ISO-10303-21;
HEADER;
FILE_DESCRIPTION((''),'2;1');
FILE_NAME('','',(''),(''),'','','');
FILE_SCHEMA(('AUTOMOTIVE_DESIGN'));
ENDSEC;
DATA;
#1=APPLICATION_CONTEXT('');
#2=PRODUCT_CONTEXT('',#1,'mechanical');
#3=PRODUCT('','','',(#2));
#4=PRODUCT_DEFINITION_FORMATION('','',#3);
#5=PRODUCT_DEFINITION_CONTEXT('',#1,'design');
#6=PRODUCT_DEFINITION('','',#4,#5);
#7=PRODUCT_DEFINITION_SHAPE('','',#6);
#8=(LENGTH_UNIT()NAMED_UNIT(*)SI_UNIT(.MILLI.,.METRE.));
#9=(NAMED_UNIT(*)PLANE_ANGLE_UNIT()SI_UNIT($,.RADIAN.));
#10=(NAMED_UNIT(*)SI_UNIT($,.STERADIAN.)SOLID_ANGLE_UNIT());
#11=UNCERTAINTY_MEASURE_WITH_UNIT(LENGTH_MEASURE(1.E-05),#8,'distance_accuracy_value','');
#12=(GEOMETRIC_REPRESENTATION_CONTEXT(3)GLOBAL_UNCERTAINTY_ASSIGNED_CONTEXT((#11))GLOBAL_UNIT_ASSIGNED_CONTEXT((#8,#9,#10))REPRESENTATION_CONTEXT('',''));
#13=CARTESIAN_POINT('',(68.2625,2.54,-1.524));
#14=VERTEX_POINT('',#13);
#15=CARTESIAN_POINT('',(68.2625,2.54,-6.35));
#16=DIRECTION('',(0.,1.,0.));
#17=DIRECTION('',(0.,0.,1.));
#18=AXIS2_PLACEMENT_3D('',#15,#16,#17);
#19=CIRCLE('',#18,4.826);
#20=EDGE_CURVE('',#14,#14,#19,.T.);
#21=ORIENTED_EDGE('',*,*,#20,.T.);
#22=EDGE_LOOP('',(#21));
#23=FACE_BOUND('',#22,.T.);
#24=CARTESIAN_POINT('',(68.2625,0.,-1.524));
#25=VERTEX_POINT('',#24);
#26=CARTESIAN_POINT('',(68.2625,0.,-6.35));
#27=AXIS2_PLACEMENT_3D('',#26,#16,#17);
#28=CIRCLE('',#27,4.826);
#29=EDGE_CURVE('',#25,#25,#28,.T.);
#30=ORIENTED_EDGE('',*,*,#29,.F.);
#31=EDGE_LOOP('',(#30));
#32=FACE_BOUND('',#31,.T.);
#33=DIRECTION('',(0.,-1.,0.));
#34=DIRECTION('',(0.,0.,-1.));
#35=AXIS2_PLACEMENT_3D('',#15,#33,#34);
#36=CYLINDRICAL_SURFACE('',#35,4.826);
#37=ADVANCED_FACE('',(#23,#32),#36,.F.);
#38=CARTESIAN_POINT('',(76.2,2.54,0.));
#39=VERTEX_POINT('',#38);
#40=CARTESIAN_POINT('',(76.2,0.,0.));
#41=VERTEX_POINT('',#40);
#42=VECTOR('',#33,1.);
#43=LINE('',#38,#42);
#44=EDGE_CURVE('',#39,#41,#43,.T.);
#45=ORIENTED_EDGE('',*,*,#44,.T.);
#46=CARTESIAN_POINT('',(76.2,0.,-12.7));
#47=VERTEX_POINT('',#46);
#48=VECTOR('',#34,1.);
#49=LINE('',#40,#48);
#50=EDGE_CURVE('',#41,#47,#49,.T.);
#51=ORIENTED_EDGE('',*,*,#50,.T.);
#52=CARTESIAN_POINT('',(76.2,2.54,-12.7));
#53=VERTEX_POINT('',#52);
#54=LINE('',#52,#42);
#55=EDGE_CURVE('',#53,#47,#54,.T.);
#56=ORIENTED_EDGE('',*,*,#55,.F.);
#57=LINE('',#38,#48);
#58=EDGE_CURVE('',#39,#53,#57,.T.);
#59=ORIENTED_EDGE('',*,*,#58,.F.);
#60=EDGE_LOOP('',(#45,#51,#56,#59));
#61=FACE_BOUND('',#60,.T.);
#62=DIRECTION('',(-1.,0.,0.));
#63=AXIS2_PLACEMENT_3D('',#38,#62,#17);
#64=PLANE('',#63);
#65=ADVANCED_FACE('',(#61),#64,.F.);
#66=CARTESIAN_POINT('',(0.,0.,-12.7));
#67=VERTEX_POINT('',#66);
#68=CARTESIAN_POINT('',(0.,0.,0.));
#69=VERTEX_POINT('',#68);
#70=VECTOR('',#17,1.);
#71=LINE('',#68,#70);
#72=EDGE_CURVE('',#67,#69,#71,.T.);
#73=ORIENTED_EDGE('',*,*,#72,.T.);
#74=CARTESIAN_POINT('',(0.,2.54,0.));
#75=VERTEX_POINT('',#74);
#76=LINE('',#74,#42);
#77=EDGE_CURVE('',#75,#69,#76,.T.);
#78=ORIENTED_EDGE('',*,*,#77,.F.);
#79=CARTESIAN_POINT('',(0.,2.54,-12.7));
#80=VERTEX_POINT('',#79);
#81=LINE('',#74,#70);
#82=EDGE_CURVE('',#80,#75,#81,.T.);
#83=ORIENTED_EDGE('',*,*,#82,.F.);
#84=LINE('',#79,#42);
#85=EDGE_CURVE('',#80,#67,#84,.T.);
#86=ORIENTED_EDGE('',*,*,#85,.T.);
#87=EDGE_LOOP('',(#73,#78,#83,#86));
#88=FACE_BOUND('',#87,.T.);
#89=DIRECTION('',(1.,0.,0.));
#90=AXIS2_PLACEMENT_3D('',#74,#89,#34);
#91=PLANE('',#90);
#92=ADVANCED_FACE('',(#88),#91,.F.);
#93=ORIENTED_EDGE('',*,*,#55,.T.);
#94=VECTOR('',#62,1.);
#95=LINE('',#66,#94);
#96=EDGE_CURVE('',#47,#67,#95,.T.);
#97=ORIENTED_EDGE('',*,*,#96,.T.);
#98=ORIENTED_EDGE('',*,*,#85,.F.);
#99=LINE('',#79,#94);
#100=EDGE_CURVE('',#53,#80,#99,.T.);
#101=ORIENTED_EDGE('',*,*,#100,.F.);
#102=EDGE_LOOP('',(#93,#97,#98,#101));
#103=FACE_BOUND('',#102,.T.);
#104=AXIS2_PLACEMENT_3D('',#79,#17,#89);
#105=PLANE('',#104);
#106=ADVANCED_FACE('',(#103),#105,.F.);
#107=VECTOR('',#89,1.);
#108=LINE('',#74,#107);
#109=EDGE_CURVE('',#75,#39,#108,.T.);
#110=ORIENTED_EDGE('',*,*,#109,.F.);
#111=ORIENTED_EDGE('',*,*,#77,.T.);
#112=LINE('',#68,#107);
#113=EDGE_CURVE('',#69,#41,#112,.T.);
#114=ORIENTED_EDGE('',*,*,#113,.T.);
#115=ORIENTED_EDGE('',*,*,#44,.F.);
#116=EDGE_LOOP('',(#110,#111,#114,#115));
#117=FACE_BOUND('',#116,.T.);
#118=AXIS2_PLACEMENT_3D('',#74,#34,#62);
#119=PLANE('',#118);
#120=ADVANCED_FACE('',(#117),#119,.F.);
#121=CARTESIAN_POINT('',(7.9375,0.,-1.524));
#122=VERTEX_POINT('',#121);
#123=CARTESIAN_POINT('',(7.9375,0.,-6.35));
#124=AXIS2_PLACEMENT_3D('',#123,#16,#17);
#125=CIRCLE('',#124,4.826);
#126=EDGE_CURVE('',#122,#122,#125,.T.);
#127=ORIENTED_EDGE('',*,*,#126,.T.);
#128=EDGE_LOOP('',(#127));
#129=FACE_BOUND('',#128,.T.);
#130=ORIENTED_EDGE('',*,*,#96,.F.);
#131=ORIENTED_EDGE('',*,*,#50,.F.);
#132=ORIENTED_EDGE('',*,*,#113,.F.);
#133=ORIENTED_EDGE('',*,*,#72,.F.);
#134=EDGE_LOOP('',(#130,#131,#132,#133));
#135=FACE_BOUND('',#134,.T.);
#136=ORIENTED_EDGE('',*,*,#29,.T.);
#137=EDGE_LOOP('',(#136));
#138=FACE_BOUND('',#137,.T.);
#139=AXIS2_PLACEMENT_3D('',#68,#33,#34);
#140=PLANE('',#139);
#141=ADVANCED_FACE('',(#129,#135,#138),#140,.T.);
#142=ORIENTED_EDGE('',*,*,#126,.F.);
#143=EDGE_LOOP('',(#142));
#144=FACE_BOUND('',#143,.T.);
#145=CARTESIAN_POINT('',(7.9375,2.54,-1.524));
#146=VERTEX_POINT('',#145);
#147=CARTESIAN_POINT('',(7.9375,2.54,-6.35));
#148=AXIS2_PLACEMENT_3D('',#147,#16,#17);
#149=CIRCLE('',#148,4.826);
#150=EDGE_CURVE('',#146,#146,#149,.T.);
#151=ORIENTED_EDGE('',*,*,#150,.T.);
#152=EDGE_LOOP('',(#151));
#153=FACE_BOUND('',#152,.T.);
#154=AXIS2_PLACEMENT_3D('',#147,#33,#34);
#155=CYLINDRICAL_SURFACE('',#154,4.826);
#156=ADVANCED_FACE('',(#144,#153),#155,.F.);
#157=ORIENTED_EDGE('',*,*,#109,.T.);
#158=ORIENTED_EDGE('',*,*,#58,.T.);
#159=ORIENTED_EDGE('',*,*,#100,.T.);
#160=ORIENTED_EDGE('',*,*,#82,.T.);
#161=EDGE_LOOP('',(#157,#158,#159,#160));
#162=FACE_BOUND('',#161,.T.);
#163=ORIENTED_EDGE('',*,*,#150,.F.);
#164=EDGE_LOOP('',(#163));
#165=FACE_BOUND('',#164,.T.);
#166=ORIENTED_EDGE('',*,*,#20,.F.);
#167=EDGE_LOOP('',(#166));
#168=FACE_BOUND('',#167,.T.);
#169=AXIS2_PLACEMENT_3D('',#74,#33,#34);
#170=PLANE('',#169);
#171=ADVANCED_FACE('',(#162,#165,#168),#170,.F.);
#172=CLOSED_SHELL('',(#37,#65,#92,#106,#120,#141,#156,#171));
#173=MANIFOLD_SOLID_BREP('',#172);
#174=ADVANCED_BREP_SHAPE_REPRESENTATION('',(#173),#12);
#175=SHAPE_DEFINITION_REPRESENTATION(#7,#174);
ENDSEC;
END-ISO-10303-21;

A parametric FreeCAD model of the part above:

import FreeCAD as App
import Part
import Sketcher

V = App.Vector
Q = App.Units.Quantity

doc = App.newDocument("Part")
params = doc.addObject("Spreadsheet::Sheet", "Params")
for row, (alias, value) in enumerate([
    ("sketch1_diameter", "0.38 in"),
    ("sketch1_width", "3 in"),
    ("sketch1_height", "0.5 in"),
    ("pad1_length", "0.1 in"),
], start=1):
    params.set(f"A{row}", alias)
    params.set(f"B{row}", "=" + value)
    params.setAlias(f"B{row}", alias)

body = doc.addObject("PartDesign::Body", "Body")

sketch1 = doc.addObject("Sketcher::SketchObject", "Sketch")
body.addObject(sketch1)
sketch1.AttachmentSupport = (doc.XZ_Plane, [""])
sketch1.MapMode = "FlatFace"
sketch1.addGeometry([
    Part.LineSegment(V(0, -12.7, 0), V(0, 0, 0)),
    Part.LineSegment(V(0, 0, 0), V(76.2, 0, 0)),
    Part.LineSegment(V(76.2, 0, 0), V(76.2, -12.7, 0)),
    Part.LineSegment(V(76.2, -12.7, 0), V(0, -12.7, 0)),
    Part.Circle(V(7.9, -6.3, 0), V(0, 0, 1), 4.8),
    Part.Circle(V(68.3, -6.3, 0), V(0, 0, 1), 4.8),
], False)
sketch1.addConstraint([
    Sketcher.Constraint("Coincident", 0, 2, 1, 1),
    Sketcher.Constraint("Coincident", 1, 2, 2, 1),
    Sketcher.Constraint("Coincident", 2, 2, 3, 1),
    Sketcher.Constraint("Coincident", 3, 2, 0, 1),
    Sketcher.Constraint("Vertical", 0),
    Sketcher.Constraint("Horizontal", 1),
    Sketcher.Constraint("Vertical", 2),
    Sketcher.Constraint("Horizontal", 3),
    Sketcher.Constraint("Coincident", 0, 2, -1, 1),
    Sketcher.Constraint("Equal", 4, 5),
    Sketcher.Constraint("Horizontal", 4, 3, 5, 3),
    Sketcher.Constraint("Diameter", 4, Q("0.38 in")),
    Sketcher.Constraint("DistanceX", 1, 1, 1, 2, Q("3 in")),
    Sketcher.Constraint("DistanceY", 0, 1, 0, 2, Q("0.5 in")),
    Sketcher.Constraint("DistanceY", 4, 3, -1, 1, Q("0.25 in")),
    Sketcher.Constraint("DistanceX", -1, 1, 4, 3, Q("0.3125 in")),
    Sketcher.Constraint("DistanceX", -1, 1, 5, 3, Q("2.6875 in")),
])
sketch1.setExpression("Constraints[11]", "Params.sketch1_diameter")
sketch1.setExpression("Constraints[12]", "Params.sketch1_width")
sketch1.setExpression("Constraints[13]", "Params.sketch1_height")
pad1 = doc.addObject("PartDesign::Pad", "Pad")
body.addObject(pad1)
pad1.Profile = sketch1
pad1.setExpression("Length", "Params.pad1_length")
pad1.Reversed = True

doc.recompute()
